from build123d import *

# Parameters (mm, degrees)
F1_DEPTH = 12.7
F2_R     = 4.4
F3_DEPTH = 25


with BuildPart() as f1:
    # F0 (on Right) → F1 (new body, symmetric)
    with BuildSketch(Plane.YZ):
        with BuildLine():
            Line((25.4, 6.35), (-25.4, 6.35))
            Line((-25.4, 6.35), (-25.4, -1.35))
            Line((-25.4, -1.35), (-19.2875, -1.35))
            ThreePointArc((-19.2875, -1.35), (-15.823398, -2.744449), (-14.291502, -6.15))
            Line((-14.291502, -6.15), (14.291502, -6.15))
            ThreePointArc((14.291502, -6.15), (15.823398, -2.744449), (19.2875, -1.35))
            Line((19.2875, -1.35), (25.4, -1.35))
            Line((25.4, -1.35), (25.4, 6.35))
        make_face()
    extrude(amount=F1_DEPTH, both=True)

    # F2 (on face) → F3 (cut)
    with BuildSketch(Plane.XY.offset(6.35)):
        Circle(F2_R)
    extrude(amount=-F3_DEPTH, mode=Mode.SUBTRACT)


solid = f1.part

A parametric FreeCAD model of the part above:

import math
import FreeCAD as App
import Part
import Sketcher
from FreeCAD import Vector

doc = App.newDocument("Part")
body = doc.addObject("PartDesign::Body", "Body")

# Sketch on YZ plane
sketch1 = body.newObject("Sketcher::SketchObject", "Sketch")
sketch1.AttachmentSupport = (doc.getObject("YZ_Plane"), [""])
sketch1.MapMode = "FlatFace"
sketch1.addGeometry(Part.LineSegment(Vector(25.4, 6.3, 0), Vector(-25.4, 6.3, 0)), False)
sketch1.addGeometry(Part.LineSegment(Vector(-25.4, 6.3, 0), Vector(-25.4, -1.4, 0)), False)
sketch1.addGeometry(Part.LineSegment(Vector(-25.4, -1.4, 0), Vector(-19.3, -1.4, 0)), False)
sketch1.addGeometry(Part.ArcOfCircle(Part.Circle(Vector(-19.3, -6.3, 0), Vector(0, 0, 1), 5), math.radians(2), math.radians(90)), False)
sketch1.addGeometry(Part.LineSegment(Vector(-14.3, -6.2, 0), Vector(14.3, -6.2, 0)), False)
sketch1.addGeometry(Part.ArcOfCircle(Part.Circle(Vector(19.3, -6.3, 0), Vector(0, 0, 1), 5), math.radians(90), math.radians(178)), False)
sketch1.addGeometry(Part.LineSegment(Vector(19.3, -1.4, 0), Vector(25.4, -1.4, 0)), False)
sketch1.addGeometry(Part.LineSegment(Vector(25.4, -1.4, 0), Vector(25.4, 6.3, 0)), False)
sketch1.addConstraint(Sketcher.Constraint("Coincident", 0, 2, 1, 1))
sketch1.addConstraint(Sketcher.Constraint("Coincident", 1, 2, 2, 1))
sketch1.addConstraint(Sketcher.Constraint("Tangent", 2, 2, 3, 2))
sketch1.addConstraint(Sketcher.Constraint("Coincident", 3, 1, 4, 1))
sketch1.addConstraint(Sketcher.Constraint("Coincident", 4, 2, 5, 2))
sketch1.addConstraint(Sketcher.Constraint("Tangent", 5, 1, 6, 1))
sketch1.addConstraint(Sketcher.Constraint("Coincident", 6, 2, 7, 1))
sketch1.addConstraint(Sketcher.Constraint("Coincident", 7, 2, 0, 1))
sketch1.addConstraint(Sketcher.Constraint("Horizontal", 0))
sketch1.addConstraint(Sketcher.Constraint("Vertical", 1))
sketch1.addConstraint(Sketcher.Constraint("Horizontal", 2))
sketch1.addConstraint(Sketcher.Constraint("Horizontal", 4))
sketch1.addConstraint(Sketcher.Constraint("Horizontal", 6))
sketch1.addConstraint(Sketcher.Constraint("Vertical", 7))
sketch1.addConstraint(Sketcher.Constraint("Equal", 3, 5))
sketch1.addConstraint(Sketcher.Constraint("Symmetric", 3, 3, 5, 3, -2))
sketch1.addConstraint(Sketcher.Constraint("Equal", 2, 6))
sketch1.addConstraint(Sketcher.Constraint("Radius", 3, 4.999999))
sketch1.addConstraint(Sketcher.Constraint("DistanceX", 0, 2, 0, 1, 50.8))
sketch1.addConstraint(Sketcher.Constraint("DistanceY", 1, 2, 1, 1, 7.7))
sketch1.addConstraint(Sketcher.Constraint("DistanceY", 3, 3, 3, 1, 0.199999))
sketch1.addConstraint(Sketcher.Constraint("DistanceY", 3, 3, -1, 1, 6.349999))
sketch1.addConstraint(Sketcher.Constraint("DistanceX", 2, 1, 2, 2, 6.1125))
pad1 = body.newObject("PartDesign::Pad", "Pad")
pad1.Profile = sketch1
pad1.Length = 25.4
pad1.Midplane = True

# Sketch on XY plane
sketch2 = body.newObject("Sketcher::SketchObject", "Sketch001")
sketch2.AttachmentSupport = (doc.getObject("XY_Plane"), [""])
sketch2.MapMode = "FlatFace"
sketch2.AttachmentOffset = App.Placement(Vector(0, 0, 6.35), App.Rotation())
sketch2.addGeometry(Part.Circle(Vector(0, 0, 0), Vector(0, 0, 1), 4.4), False)
sketch2.addConstraint(Sketcher.Constraint("Coincident", 0, 3, -1, 1))
sketch2.addConstraint(Sketcher.Constraint("Diameter", 0, 8.8))
pocket1 = body.newObject("PartDesign::Pocket", "Pocket")
pocket1.Profile = sketch2
pocket1.Length = 25

doc.recompute()
